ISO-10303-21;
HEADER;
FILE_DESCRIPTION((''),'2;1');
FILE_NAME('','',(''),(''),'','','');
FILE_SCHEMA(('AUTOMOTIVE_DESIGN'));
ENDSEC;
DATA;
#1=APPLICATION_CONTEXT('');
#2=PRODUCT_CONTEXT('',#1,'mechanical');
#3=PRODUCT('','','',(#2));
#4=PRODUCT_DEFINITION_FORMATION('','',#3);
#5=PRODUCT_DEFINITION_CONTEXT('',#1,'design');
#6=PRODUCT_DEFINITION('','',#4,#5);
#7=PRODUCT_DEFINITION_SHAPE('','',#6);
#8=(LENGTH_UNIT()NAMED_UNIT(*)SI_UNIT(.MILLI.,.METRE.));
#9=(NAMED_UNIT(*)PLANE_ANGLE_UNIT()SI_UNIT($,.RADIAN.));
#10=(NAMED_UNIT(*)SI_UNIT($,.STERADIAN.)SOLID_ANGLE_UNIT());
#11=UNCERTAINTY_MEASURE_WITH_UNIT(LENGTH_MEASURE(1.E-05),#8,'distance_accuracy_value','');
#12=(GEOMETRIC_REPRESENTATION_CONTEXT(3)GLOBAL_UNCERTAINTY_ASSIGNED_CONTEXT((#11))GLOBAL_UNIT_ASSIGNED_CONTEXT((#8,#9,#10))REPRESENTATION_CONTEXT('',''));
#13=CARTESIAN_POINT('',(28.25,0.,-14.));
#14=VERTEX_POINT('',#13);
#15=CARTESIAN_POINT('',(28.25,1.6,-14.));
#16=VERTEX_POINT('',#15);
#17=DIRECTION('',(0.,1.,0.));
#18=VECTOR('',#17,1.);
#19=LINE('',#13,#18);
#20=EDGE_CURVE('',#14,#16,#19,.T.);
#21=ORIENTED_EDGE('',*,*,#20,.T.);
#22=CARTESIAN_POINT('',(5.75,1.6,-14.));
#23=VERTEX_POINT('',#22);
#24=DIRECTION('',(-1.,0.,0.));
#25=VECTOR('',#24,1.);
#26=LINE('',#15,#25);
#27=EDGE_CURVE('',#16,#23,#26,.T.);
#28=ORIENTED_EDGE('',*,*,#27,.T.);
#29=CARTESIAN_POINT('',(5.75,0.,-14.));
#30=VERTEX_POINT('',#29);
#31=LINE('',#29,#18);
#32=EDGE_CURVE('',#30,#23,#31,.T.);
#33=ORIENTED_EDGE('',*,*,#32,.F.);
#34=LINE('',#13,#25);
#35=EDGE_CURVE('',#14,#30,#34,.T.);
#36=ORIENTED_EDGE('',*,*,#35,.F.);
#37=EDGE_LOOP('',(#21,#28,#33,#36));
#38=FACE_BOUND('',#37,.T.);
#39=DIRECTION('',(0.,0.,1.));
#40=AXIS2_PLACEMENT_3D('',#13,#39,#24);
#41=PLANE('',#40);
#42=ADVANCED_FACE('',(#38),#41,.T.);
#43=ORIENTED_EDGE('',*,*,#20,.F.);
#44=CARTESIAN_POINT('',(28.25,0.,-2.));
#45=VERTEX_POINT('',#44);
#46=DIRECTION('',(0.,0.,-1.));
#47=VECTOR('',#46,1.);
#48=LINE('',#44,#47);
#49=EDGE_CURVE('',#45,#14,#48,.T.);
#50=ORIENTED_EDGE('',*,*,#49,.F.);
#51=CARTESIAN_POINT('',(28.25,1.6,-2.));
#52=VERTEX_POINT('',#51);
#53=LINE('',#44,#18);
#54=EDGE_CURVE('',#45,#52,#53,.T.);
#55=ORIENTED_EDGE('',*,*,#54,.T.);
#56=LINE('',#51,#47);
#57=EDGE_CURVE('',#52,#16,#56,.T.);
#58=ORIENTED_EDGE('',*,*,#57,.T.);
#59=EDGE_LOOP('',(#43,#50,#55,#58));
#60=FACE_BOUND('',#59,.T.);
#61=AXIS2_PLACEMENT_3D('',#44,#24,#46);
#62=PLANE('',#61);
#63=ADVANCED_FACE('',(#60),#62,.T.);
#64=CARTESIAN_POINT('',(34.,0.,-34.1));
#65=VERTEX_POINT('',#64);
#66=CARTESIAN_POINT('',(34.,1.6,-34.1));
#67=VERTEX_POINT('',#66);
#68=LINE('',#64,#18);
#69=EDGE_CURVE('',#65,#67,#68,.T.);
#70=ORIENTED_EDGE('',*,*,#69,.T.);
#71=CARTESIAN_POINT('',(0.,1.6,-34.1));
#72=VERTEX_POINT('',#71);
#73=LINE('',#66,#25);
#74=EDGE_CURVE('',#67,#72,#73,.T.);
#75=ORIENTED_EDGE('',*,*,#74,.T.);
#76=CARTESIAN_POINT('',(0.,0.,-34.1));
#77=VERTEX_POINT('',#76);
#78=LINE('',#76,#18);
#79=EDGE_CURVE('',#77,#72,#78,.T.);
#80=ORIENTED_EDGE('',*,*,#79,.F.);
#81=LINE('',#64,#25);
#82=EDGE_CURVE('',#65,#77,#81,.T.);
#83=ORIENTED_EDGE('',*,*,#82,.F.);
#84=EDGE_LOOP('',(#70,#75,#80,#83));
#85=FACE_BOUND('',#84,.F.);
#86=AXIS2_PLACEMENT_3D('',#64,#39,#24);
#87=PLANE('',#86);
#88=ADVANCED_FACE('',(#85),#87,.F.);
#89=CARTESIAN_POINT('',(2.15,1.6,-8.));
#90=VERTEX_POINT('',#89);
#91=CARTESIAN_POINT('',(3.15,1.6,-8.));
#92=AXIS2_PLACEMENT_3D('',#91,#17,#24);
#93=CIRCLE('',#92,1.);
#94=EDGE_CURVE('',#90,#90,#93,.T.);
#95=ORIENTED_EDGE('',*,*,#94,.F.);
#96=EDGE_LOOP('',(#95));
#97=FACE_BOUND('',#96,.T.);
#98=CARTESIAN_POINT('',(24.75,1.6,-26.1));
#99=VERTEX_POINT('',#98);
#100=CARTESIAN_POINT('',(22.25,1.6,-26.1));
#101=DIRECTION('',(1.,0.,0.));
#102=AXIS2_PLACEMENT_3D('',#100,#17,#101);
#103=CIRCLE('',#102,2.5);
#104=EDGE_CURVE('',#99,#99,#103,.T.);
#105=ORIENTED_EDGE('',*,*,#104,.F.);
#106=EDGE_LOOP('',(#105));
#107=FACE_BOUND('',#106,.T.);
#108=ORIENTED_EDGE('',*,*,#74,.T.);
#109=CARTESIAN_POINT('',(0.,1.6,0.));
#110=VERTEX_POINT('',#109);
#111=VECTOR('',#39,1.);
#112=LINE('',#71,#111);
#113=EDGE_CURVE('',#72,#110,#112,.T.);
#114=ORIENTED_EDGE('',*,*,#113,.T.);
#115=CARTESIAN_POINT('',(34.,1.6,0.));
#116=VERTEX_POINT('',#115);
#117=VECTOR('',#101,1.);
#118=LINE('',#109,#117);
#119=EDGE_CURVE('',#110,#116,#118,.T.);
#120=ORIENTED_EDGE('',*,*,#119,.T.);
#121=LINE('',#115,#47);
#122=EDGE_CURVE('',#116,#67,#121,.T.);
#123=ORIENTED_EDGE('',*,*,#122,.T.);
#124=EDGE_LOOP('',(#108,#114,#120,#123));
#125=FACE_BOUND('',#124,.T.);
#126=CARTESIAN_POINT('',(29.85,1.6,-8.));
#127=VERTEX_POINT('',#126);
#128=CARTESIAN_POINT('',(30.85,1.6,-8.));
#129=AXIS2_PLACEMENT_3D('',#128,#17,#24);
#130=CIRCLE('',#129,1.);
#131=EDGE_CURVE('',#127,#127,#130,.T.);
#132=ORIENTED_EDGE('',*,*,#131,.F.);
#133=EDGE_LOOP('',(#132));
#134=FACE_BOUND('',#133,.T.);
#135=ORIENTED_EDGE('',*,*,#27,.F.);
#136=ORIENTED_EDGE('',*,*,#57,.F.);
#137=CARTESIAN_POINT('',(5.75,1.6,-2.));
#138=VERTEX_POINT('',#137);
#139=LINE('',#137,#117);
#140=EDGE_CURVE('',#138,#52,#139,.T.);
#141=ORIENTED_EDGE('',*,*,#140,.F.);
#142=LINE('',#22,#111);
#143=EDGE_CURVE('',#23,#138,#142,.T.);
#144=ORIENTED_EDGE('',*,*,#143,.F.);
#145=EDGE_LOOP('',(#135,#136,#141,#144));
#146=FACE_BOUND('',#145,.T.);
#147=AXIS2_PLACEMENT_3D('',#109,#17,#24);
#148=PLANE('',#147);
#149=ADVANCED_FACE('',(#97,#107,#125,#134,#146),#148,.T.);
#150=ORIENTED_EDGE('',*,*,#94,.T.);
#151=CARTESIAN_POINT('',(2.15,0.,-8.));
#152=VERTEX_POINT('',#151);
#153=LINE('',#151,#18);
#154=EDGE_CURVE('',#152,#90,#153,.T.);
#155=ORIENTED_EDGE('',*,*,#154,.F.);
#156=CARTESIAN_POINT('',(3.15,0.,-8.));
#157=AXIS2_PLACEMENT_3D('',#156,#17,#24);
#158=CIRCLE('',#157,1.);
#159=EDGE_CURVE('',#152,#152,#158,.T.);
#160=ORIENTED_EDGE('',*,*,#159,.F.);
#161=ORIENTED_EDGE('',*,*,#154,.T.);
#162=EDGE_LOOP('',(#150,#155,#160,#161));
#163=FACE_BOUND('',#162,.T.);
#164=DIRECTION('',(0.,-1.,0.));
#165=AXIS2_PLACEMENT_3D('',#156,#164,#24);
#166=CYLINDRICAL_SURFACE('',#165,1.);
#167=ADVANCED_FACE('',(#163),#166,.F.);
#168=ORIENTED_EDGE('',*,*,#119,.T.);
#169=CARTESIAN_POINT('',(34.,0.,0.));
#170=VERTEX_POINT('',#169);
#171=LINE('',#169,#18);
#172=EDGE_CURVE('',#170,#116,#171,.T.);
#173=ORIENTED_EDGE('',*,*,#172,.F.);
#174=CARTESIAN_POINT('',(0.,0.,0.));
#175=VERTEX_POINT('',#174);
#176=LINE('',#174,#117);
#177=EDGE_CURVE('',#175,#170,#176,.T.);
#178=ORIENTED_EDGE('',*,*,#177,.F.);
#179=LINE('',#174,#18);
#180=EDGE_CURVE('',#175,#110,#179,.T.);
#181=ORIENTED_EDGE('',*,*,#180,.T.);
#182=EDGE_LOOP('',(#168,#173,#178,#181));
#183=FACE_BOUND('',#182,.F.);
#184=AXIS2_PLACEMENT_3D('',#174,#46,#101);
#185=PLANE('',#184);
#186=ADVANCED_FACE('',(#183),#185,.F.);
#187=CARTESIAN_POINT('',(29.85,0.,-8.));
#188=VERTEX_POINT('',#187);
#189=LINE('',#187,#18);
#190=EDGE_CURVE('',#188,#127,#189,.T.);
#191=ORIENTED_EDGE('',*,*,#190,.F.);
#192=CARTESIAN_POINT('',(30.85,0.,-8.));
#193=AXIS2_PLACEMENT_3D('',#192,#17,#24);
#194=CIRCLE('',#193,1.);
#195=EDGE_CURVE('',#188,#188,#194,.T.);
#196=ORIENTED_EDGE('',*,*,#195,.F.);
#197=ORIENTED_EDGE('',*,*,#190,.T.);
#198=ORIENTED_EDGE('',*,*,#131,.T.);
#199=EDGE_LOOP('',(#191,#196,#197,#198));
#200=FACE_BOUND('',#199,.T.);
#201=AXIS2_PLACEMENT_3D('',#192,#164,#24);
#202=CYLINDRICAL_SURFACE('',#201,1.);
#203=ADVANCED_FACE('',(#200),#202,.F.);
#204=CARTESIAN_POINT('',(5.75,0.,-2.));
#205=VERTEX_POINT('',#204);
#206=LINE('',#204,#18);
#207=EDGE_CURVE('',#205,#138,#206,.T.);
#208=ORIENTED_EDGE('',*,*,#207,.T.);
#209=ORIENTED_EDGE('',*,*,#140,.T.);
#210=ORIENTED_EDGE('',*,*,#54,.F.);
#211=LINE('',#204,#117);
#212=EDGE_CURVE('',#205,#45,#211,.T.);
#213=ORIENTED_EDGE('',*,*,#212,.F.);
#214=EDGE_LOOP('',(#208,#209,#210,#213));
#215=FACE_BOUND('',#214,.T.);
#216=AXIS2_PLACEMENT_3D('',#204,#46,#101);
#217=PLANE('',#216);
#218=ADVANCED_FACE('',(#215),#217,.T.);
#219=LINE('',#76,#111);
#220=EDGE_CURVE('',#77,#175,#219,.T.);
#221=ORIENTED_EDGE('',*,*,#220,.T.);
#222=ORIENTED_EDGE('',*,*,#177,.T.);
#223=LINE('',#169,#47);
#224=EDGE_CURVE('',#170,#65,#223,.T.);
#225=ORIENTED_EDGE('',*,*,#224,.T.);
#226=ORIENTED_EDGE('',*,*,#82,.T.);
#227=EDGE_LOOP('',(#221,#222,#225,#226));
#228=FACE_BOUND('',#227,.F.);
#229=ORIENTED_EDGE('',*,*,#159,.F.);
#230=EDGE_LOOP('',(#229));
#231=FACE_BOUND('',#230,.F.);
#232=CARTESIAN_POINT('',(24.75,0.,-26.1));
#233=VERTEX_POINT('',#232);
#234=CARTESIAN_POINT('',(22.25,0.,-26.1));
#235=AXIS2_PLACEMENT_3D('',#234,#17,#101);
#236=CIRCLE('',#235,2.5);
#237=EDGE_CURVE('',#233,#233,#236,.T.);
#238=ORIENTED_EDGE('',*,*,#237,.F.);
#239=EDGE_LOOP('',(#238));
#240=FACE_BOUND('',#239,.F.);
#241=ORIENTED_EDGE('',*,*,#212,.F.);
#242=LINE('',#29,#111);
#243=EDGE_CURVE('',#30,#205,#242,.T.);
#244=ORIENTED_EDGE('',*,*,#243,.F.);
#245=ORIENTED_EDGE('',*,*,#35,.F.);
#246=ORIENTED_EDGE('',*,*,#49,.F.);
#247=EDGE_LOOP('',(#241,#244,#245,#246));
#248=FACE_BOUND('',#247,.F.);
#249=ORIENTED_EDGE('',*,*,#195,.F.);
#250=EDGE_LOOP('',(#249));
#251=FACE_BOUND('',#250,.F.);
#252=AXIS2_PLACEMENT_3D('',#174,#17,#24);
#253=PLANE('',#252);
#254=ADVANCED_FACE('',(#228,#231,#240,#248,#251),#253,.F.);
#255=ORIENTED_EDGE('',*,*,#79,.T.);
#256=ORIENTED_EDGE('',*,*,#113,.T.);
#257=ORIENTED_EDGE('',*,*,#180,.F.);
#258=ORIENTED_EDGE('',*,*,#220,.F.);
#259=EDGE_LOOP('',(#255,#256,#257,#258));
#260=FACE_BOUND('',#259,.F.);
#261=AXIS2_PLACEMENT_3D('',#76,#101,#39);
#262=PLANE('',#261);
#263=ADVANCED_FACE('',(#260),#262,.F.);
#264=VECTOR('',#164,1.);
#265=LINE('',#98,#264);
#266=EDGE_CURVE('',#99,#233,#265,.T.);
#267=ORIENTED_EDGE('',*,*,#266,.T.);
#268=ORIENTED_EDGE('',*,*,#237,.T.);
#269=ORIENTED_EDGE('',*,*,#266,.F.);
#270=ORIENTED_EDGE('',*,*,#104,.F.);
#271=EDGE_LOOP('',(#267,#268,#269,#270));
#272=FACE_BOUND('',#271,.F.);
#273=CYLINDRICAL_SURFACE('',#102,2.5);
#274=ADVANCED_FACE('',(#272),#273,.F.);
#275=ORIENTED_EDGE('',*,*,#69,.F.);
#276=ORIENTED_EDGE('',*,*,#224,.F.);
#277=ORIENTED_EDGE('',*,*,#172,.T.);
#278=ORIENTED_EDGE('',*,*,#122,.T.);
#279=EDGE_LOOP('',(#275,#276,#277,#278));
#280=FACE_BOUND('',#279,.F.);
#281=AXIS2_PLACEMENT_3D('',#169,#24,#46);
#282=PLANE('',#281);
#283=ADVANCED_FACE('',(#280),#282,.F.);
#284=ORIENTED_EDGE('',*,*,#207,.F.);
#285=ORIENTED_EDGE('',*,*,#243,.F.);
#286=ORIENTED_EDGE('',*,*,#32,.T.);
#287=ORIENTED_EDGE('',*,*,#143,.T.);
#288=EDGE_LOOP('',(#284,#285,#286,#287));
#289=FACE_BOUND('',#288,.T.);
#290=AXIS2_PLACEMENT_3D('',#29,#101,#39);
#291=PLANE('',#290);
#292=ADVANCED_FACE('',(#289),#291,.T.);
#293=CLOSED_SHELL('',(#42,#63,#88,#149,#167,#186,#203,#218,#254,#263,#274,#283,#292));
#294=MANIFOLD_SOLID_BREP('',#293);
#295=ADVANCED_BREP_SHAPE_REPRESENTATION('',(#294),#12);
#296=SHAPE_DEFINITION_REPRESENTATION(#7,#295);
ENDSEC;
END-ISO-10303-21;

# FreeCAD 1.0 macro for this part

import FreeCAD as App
import Part
import Sketcher
Q = App.Units.Quantity


def add_polygon(sketch, points):
    """Adds a closed chain of lines whose ends are joined by coincident constraints."""
    first, n = sketch.GeometryCount, len(points)
    for a, b in zip(points, points[1:] + points[:1]):
        sketch.addGeometry(Part.LineSegment(App.Vector(*a, 0), App.Vector(*b, 0)), False)
    for i in range(n):
        sketch.addConstraint(Sketcher.Constraint("Coincident", first + i, 2, first + (i + 1) % n, 1))

doc = App.newDocument("Part")
body = doc.addObject("PartDesign::Body", "Body")

# Sketch on XZ plane
sketch1 = body.newObject("Sketcher::SketchObject", "Sketch")
sketch1.AttachmentSupport = (doc.getObject("XZ_Plane"), [""])
sketch1.MapMode = "FlatFace"
add_polygon(sketch1, [(0, -34.1), (0, 0), (34, 0), (34, -34.1)])  # lines 0-3
sketch1.addGeometry(Part.Circle(App.Vector(30.9, -8, 0), App.Vector(0, 0, 1), 1), False)  # 4
add_polygon(sketch1, [(28.2, -2), (5.8, -2), (5.8, -14), (28.2, -14)])  # lines 5-8
sketch1.addGeometry(Part.Circle(App.Vector(3.1, -8, 0), App.Vector(0, 0, 1), 1), False)  # 9
sketch1.addConstraint([
    Sketcher.Constraint("Vertical", 0),
    Sketcher.Constraint("Horizontal", 1),
    Sketcher.Constraint("Vertical", 2),
    Sketcher.Constraint("Horizontal", 3),
    Sketcher.Constraint("Horizontal", 5),
    Sketcher.Constraint("Vertical", 6),
    Sketcher.Constraint("Horizontal", 7),
    Sketcher.Constraint("Vertical", 8),
    Sketcher.Constraint("Coincident", 0, 2, -1, 1),
    Sketcher.Constraint("Equal", 4, 9),
    Sketcher.Constraint("Horizontal", 4, 3, 9, 3),
    Sketcher.Constraint("Diameter", 4, Q("2 mm")),
    Sketcher.Constraint("DistanceX", 1, 1, 1, 2, Q("34 mm")),
    Sketcher.Constraint("DistanceY", 6, 2, 6, 1, Q("12 mm")),
    Sketcher.Constraint("DistanceX", 5, 2, 5, 1, Q("22.5 mm")),
    Sketcher.Constraint("DistanceY", 0, 1, 0, 2, Q("34.1 mm")),
    Sketcher.Constraint("DistanceY", 5, 2, -1, 1, Q("2 mm")),
    Sketcher.Constraint("DistanceY", 9, 3, 5, 2, Q("6 mm")),
    Sketcher.Constraint("DistanceX", 9, 3, 5, 2, Q("2.6 mm")),
    Sketcher.Constraint("DistanceX", 7, 2, 4, 3, Q("2.6 mm")),
    Sketcher.Constraint("DistanceX", -1, 1, 5, 2, Q("5.75 mm")),
])
pad1 = body.newObject("PartDesign::Pad", "Pad")
pad1.Profile = sketch1
pad1.Length = 1.6
pad1.Reversed = True

# Sketch on XZ plane
sketch2 = body.newObject("Sketcher::SketchObject", "Sketch001")
sketch2.AttachmentSupport = (doc.getObject("XZ_Plane"), [""])
sketch2.MapMode = "FlatFace"
sketch2.AttachmentOffset = App.Placement(App.Vector(0, 0, -1.6), App.Rotation())
sketch2.addGeometry(Part.Circle(App.Vector(22.2, -26.1, 0), App.Vector(0, 0, 1), 2.5), False)
sketch2.addConstraint([
    Sketcher.Constraint("Diameter", 0, Q("5 mm")),
    Sketcher.Constraint("DistanceY", 0, 3, -1, 1, Q("26.1 mm")),
    Sketcher.Constraint("DistanceX", -1, 1, 0, 3, Q("22.25 mm")),
])
pocket1 = body.newObject("PartDesign::Pocket", "Pocket")
pocket1.Profile = sketch2
pocket1.Length = 1.6
pocket1.Reversed = True

doc.recompute()
